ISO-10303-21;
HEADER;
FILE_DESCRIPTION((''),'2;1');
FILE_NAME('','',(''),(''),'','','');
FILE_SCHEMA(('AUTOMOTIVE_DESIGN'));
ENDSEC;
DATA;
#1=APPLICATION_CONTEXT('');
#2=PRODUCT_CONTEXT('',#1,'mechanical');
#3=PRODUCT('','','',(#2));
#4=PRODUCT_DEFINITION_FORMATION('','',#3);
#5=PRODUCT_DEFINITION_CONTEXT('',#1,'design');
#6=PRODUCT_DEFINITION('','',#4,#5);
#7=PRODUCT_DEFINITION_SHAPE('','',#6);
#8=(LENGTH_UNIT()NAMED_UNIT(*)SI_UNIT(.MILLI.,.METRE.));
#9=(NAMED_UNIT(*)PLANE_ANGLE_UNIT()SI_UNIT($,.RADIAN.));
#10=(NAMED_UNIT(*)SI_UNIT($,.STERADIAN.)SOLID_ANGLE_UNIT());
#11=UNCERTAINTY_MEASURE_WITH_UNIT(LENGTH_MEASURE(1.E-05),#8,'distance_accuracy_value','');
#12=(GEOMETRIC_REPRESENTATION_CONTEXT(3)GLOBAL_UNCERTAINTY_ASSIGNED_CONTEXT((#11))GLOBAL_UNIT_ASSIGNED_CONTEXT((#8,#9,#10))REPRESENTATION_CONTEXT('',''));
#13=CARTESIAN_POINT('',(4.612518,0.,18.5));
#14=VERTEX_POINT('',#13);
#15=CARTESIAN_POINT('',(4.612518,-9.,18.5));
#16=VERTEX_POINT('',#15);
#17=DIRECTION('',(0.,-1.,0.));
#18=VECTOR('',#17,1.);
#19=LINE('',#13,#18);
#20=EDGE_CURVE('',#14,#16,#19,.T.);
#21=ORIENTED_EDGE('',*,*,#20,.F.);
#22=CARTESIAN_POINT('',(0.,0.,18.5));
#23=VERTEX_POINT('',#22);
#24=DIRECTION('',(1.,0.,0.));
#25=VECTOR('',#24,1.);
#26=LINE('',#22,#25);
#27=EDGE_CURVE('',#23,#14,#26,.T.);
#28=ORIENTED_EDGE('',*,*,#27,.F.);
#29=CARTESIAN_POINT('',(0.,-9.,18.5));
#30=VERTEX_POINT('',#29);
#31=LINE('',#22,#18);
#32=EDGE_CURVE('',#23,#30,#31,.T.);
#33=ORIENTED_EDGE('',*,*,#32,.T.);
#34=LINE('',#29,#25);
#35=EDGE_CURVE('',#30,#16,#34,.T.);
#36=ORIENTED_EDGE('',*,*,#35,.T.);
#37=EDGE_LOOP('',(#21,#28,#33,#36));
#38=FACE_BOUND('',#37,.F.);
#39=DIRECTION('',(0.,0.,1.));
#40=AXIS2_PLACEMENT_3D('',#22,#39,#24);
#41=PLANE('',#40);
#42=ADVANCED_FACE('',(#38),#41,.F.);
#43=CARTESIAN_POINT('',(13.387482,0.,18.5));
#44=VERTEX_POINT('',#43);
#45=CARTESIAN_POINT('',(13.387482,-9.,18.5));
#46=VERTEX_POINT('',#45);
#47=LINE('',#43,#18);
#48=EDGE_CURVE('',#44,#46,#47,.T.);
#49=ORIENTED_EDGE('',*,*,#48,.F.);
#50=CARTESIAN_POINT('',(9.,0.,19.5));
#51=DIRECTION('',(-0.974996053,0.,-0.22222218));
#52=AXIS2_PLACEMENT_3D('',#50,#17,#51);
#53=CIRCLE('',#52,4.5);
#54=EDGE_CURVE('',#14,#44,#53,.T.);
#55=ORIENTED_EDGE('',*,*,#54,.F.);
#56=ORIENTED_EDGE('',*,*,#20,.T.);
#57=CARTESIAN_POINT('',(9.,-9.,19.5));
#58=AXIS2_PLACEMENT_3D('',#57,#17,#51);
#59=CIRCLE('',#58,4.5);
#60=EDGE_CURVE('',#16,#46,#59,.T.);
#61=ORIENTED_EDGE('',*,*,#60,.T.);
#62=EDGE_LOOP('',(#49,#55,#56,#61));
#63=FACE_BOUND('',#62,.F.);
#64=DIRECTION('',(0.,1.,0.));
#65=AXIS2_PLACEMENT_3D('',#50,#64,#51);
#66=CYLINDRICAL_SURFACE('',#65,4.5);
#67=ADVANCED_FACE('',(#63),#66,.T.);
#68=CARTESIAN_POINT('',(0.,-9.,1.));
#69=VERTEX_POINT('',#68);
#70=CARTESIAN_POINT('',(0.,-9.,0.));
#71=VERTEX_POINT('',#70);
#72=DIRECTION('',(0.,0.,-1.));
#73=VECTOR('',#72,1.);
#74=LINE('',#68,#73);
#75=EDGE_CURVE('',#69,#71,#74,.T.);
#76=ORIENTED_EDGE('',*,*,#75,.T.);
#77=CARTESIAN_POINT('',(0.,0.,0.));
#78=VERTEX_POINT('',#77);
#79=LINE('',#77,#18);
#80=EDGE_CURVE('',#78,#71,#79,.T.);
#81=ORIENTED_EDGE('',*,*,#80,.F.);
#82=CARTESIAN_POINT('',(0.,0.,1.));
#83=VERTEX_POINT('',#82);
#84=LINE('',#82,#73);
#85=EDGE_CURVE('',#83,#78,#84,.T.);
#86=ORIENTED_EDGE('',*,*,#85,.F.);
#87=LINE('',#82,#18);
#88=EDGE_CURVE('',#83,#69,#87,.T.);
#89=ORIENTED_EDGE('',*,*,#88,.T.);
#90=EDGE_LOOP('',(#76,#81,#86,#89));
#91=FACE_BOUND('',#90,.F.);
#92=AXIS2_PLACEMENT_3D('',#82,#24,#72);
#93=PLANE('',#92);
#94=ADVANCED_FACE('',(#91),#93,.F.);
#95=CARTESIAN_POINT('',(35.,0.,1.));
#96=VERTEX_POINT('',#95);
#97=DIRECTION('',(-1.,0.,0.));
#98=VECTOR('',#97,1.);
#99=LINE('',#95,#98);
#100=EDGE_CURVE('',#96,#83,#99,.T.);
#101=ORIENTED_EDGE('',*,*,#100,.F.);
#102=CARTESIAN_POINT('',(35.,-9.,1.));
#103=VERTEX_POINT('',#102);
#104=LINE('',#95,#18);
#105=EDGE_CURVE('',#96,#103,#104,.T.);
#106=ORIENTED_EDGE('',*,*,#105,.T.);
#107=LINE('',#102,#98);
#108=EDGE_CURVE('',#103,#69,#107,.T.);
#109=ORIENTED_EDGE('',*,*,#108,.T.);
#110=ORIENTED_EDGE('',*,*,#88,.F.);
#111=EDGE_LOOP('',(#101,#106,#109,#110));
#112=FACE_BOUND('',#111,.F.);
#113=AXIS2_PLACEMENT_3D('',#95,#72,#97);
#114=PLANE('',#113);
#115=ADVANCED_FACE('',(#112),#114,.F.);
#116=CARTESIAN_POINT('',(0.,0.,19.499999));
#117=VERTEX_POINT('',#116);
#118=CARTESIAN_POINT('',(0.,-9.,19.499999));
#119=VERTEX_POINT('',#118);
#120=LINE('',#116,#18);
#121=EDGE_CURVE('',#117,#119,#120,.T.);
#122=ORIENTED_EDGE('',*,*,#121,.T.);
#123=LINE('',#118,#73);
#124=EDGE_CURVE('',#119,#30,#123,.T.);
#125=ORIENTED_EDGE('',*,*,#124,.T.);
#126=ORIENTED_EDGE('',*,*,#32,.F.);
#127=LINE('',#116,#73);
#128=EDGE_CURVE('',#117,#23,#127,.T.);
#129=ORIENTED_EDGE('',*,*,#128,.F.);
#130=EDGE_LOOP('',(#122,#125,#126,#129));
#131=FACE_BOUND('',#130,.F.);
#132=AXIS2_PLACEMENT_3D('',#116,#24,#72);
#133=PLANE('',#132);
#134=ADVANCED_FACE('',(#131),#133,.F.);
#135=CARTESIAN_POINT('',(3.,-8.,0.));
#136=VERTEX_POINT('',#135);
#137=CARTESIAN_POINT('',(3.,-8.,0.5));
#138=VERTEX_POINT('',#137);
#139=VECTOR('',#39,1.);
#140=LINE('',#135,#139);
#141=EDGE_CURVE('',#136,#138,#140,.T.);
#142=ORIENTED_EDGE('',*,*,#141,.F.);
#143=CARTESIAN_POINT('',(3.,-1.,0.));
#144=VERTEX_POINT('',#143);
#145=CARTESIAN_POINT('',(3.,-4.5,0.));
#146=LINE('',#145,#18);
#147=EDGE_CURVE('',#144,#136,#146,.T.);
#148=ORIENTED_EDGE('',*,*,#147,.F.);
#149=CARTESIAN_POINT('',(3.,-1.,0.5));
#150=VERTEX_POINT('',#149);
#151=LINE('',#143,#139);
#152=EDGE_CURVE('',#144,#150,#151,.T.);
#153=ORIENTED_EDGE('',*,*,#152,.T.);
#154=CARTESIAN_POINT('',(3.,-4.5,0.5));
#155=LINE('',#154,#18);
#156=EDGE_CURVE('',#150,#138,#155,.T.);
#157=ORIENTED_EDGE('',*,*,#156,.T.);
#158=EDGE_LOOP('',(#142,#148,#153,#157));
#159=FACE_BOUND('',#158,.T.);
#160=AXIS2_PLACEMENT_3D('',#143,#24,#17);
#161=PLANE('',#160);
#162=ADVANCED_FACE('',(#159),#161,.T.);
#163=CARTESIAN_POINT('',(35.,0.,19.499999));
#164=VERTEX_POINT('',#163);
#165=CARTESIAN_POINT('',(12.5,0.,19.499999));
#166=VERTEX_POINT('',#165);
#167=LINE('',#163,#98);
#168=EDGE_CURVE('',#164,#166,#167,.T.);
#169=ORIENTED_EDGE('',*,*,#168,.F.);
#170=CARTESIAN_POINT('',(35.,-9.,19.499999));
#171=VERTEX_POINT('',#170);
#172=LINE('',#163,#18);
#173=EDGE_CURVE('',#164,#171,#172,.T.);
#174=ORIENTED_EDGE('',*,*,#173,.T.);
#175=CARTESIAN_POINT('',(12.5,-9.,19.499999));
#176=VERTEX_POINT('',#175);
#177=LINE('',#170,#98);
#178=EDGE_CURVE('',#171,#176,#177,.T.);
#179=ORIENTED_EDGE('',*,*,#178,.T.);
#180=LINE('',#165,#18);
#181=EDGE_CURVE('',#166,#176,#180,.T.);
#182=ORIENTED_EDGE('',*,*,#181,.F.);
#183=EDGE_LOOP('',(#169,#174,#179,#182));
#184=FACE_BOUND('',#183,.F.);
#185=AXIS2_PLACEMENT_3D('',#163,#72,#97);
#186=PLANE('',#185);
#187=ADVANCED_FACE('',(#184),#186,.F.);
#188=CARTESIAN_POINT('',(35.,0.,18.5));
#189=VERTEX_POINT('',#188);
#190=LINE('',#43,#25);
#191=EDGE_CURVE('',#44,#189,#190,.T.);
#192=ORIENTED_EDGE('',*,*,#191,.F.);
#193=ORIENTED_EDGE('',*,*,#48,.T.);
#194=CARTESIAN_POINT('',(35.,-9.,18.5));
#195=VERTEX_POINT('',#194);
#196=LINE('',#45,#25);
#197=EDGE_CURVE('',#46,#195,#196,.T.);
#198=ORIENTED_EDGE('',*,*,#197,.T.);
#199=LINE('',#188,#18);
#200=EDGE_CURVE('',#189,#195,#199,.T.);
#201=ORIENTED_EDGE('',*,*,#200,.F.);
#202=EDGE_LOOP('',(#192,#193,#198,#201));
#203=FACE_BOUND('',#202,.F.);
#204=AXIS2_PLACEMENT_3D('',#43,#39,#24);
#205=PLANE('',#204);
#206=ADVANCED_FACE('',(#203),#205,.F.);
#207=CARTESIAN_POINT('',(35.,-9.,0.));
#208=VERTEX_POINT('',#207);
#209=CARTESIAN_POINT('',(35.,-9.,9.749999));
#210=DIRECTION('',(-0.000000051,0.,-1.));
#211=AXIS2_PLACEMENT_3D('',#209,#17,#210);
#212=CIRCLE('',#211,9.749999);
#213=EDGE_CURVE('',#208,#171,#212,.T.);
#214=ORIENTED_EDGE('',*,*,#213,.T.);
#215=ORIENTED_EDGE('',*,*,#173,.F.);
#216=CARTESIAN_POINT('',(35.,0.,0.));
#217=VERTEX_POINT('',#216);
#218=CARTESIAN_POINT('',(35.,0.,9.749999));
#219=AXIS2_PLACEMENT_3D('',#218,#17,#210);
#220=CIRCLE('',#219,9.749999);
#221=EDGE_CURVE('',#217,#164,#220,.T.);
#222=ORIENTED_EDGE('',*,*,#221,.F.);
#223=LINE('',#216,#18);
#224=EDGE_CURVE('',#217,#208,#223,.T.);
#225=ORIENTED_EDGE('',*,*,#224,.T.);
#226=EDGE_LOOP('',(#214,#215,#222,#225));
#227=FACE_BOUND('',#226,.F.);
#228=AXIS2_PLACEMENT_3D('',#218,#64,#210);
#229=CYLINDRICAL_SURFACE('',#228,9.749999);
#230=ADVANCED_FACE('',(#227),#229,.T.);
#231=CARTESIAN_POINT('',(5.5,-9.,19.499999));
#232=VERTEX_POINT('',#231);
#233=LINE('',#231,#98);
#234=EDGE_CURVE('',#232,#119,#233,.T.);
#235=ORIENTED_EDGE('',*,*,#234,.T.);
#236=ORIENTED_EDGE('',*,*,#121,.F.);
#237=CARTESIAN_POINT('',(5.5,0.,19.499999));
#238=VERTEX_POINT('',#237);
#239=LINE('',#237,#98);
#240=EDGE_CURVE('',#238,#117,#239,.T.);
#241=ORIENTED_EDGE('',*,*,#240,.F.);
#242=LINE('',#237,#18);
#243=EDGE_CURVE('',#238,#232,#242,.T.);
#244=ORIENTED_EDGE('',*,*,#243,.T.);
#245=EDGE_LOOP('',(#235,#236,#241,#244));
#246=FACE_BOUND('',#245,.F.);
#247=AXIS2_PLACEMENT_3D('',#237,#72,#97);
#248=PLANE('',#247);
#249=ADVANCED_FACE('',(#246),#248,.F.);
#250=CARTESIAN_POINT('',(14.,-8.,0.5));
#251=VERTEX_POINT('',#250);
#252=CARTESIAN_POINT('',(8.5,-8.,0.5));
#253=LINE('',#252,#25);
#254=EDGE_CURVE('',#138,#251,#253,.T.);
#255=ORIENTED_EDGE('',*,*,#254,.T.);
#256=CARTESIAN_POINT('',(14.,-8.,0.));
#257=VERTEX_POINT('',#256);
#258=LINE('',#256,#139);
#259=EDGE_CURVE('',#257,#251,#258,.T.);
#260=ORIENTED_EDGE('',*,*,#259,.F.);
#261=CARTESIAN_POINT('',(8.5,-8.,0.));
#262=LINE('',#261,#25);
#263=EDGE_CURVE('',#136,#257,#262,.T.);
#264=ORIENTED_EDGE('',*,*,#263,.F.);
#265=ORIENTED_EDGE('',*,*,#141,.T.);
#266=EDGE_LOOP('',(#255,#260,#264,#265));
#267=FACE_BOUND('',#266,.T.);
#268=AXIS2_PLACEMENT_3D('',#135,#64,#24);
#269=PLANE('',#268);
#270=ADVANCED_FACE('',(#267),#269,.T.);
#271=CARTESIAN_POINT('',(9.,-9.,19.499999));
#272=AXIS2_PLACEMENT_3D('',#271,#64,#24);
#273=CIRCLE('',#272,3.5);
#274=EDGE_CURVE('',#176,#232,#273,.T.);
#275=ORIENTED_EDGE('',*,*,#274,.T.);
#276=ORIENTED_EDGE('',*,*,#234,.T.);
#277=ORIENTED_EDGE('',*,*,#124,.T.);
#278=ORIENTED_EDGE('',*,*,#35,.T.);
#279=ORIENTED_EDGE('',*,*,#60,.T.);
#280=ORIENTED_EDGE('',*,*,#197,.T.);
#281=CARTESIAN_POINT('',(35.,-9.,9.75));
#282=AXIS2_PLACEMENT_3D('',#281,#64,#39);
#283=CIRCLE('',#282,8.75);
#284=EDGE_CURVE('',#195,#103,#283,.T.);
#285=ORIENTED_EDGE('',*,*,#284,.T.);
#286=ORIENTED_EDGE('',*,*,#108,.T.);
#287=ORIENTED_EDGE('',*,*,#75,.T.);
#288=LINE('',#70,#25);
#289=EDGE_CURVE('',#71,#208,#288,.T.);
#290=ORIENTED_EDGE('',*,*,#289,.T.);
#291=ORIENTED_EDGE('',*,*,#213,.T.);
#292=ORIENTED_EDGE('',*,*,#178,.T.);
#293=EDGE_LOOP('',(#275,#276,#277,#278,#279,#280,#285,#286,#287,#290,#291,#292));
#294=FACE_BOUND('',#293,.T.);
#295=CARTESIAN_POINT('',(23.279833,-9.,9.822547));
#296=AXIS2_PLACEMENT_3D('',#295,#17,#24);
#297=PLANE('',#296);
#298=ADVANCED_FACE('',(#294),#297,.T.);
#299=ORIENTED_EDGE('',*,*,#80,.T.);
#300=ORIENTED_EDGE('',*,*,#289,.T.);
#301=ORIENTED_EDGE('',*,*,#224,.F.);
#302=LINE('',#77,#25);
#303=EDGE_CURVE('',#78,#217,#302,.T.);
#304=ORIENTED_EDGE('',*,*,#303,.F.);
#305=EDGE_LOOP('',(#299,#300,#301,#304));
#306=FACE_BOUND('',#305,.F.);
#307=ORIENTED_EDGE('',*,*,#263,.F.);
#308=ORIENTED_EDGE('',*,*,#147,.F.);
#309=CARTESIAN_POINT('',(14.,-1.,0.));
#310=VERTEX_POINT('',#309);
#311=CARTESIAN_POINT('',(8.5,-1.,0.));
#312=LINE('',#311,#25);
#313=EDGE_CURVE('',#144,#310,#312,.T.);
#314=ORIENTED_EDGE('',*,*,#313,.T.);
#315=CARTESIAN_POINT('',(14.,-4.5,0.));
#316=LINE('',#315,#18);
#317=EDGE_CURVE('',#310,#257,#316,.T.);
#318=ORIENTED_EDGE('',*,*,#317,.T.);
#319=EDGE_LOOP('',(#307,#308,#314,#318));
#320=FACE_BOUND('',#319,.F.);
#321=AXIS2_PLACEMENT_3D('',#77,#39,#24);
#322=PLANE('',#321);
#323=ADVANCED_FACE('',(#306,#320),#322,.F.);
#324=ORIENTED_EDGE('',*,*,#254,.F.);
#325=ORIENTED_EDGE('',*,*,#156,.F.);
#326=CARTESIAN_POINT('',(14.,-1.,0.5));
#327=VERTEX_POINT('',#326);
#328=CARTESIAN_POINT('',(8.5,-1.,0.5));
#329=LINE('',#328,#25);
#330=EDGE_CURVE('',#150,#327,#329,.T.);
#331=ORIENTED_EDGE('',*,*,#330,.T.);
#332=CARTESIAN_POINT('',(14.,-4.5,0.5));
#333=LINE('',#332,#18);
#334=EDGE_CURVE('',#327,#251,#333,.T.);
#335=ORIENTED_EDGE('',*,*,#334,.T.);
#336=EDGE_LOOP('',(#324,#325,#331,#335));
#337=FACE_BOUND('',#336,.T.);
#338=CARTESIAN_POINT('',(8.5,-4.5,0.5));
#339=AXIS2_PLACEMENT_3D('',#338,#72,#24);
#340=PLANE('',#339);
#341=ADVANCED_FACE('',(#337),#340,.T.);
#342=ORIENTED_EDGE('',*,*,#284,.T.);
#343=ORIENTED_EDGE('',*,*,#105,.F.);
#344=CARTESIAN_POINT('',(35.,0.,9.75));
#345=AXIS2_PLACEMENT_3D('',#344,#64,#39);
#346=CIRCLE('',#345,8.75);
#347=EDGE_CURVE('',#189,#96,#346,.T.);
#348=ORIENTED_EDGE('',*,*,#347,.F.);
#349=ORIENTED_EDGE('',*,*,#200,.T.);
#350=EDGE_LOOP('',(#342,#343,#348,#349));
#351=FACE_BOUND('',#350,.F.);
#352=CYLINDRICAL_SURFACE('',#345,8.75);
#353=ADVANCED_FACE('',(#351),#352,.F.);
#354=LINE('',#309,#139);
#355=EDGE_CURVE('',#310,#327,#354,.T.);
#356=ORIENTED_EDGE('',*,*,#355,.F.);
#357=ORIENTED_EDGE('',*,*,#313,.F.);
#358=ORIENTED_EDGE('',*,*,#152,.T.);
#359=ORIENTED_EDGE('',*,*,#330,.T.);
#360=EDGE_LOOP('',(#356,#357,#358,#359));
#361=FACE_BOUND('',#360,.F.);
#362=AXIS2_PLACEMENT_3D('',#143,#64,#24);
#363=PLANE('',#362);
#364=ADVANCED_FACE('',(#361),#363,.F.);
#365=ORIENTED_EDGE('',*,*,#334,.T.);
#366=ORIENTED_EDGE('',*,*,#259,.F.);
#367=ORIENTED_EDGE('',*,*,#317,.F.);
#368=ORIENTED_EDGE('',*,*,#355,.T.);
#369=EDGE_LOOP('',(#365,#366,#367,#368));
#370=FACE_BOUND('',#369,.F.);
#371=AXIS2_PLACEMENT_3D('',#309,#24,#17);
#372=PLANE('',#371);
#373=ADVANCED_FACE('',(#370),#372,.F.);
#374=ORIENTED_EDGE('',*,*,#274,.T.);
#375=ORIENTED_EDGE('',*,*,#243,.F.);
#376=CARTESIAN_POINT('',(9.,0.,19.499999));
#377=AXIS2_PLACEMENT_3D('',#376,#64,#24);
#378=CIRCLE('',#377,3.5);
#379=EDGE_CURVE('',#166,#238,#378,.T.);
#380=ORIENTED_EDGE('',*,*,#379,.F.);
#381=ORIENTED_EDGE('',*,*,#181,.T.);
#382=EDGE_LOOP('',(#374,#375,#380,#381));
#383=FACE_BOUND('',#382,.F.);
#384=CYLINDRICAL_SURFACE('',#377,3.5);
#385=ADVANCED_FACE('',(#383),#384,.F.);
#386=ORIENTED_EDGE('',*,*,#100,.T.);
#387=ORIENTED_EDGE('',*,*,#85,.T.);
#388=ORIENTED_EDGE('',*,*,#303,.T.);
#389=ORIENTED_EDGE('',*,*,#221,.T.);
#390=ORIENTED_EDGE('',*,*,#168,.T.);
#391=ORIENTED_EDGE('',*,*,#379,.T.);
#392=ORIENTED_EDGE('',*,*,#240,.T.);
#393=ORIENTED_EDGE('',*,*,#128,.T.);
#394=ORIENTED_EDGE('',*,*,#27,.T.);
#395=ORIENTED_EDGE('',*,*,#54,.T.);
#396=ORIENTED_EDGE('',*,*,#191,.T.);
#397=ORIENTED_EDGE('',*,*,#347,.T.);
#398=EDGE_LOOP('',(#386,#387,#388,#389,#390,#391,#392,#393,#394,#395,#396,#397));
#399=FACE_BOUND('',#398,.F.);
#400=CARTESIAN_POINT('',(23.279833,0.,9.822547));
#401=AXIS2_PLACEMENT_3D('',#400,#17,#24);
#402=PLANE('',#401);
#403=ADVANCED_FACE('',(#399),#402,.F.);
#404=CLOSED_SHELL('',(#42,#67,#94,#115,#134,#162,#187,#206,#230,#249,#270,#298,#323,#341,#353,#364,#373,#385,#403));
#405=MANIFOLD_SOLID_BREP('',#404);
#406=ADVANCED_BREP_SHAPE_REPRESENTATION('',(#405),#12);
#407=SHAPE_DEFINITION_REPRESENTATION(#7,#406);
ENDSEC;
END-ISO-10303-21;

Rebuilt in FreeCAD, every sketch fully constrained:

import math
import FreeCAD as App
import Part
import Sketcher
from FreeCAD import Vector

doc = App.newDocument("Part")
body = doc.addObject("PartDesign::Body", "Body")

# Sketch on XZ plane
sketch1 = doc.addObject("Sketcher::SketchObject", "Sketch")
body.addObject(sketch1)
sketch1.AttachmentSupport = (doc.XZ_Plane, [""])
sketch1.MapMode = "FlatFace"
sketch1.addGeometry([
    Part.LineSegment(Vector(0, 1, 0), Vector(0, 0, 0)),  # 0
    Part.LineSegment(Vector(0, 0, 0), Vector(35, 0, 0)),  # 1
    Part.ArcOfCircle(Part.Circle(Vector(35, 9.749999, 0), Vector(0, 0, 1), 9.749999), math.radians(-90.000003), math.radians(90.000003)),  # 2
    Part.LineSegment(Vector(35, 19.499999, 0), Vector(12.5, 19.499999, 0)),  # 3
    Part.ArcOfCircle(Part.Circle(Vector(9, 19.499999, 0), Vector(0, 0, 1), 3.5), math.radians(180), math.radians(360)),  # 4
    Part.LineSegment(Vector(5.5, 19.499999, 0), Vector(0, 19.499999, 0)),  # 5
    Part.LineSegment(Vector(0, 19.499999, 0), Vector(0, 18.5, 0)),  # 6
    Part.LineSegment(Vector(0, 18.5, 0), Vector(4.612518, 18.5, 0)),  # 7
    Part.ArcOfCircle(Part.Circle(Vector(9, 19.5, 0), Vector(0, 0, 1), 4.5), math.radians(-167.160414), math.radians(-12.839586)),  # 8
    Part.LineSegment(Vector(13.387482, 18.5, 0), Vector(35, 18.5, 0)),  # 9
    Part.ArcOfCircle(Part.Circle(Vector(35, 9.75, 0), Vector(0, 0, 1), 8.75), math.radians(-90), math.radians(90)),  # 10
    Part.LineSegment(Vector(35, 1, 0), Vector(0, 1, 0)),  # 11
], False)
sketch1.addConstraint([
    Sketcher.Constraint("Coincident", 0, 2, 1, 1),
    Sketcher.Constraint("Tangent", 1, 2, 2, 1),
    Sketcher.Constraint("Tangent", 2, 2, 3, 1),
    Sketcher.Constraint("Coincident", 3, 2, 4, 2),
    Sketcher.Constraint("Coincident", 4, 1, 5, 1),
    Sketcher.Constraint("Coincident", 5, 2, 6, 1),
    Sketcher.Constraint("Coincident", 6, 2, 7, 1),
    Sketcher.Constraint("Coincident", 7, 2, 8, 1),
    Sketcher.Constraint("Coincident", 8, 2, 9, 1),
    Sketcher.Constraint("Tangent", 9, 2, 10, 2),
    Sketcher.Constraint("Tangent", 10, 1, 11, 1),
    Sketcher.Constraint("Coincident", 11, 2, 0, 1),
    Sketcher.Constraint("Vertical", 0),
    Sketcher.Constraint("Horizontal", 1),
    Sketcher.Constraint("Horizontal", 3),
    Sketcher.Constraint("Horizontal", 5),
    Sketcher.Constraint("Vertical", 6),
    Sketcher.Constraint("Horizontal", 7),
    Sketcher.Constraint("Horizontal", 9),
    Sketcher.Constraint("Horizontal", 11),
    Sketcher.Constraint("Coincident", 0, 2, -1, 1),
    Sketcher.Constraint("Coincident", 8, 3, 4, 3),
    Sketcher.Constraint("Coincident", 10, 3, 2, 3),
    Sketcher.Constraint("PointOnObject", 5, 2, -2),
    Sketcher.Constraint("Horizontal", 8, 3, 2, 2),
    Sketcher.Constraint("Horizontal", 3, 2, 4, 1),
    Sketcher.Constraint("Horizontal", 7, 2, 8, 2),
    Sketcher.Constraint("Radius", 4, 3.5),
    Sketcher.Constraint("Radius", 8, 4.5),
    Sketcher.Constraint("DistanceX", 1, 1, 1, 2, 35.0),
    Sketcher.Constraint("DistanceY", 0, 2, 0, 1, 1.0),
    Sketcher.Constraint("Radius", 2, 9.749999),
    Sketcher.Constraint("DistanceX", 3, 2, 3, 1, 22.5),
])
pad1 = doc.addObject("PartDesign::Pad", "Pad")
body.addObject(pad1)
pad1.Profile = sketch1
pad1.Length = 9

# Sketch on XY plane
sketch2 = doc.addObject("Sketcher::SketchObject", "Sketch001")
body.addObject(sketch2)
sketch2.AttachmentSupport = (doc.XY_Plane, [""])
sketch2.MapMode = "FlatFace"
sketch2.addGeometry([
    Part.LineSegment(Vector(3, -8, 0), Vector(3, -1, 0)),
    Part.LineSegment(Vector(3, -1, 0), Vector(14, -1, 0)),
    Part.LineSegment(Vector(14, -1, 0), Vector(14, -8, 0)),
    Part.LineSegment(Vector(14, -8, 0), Vector(3, -8, 0)),
], False)
sketch2.addConstraint([
    Sketcher.Constraint("Coincident", 0, 2, 1, 1),
    Sketcher.Constraint("Coincident", 1, 2, 2, 1),
    Sketcher.Constraint("Coincident", 2, 2, 3, 1),
    Sketcher.Constraint("Coincident", 3, 2, 0, 1),
    Sketcher.Constraint("Vertical", 0),
    Sketcher.Constraint("Horizontal", 1),
    Sketcher.Constraint("Vertical", 2),
    Sketcher.Constraint("Horizontal", 3),
    Sketcher.Constraint("DistanceX", 1, 1, 1, 2, 11.0),
    Sketcher.Constraint("DistanceY", 0, 1, 0, 2, 7.0),
    Sketcher.Constraint("DistanceX", -1, 1, 0, 2, 3.0),
    Sketcher.Constraint("DistanceY", 0, 2, -1, 1, 1.0),
])
pocket1 = doc.addObject("PartDesign::Pocket", "Pocket")
body.addObject(pocket1)
pocket1.Profile = sketch2
pocket1.Length = 0.5
pocket1.Reversed = True

doc.recompute()
